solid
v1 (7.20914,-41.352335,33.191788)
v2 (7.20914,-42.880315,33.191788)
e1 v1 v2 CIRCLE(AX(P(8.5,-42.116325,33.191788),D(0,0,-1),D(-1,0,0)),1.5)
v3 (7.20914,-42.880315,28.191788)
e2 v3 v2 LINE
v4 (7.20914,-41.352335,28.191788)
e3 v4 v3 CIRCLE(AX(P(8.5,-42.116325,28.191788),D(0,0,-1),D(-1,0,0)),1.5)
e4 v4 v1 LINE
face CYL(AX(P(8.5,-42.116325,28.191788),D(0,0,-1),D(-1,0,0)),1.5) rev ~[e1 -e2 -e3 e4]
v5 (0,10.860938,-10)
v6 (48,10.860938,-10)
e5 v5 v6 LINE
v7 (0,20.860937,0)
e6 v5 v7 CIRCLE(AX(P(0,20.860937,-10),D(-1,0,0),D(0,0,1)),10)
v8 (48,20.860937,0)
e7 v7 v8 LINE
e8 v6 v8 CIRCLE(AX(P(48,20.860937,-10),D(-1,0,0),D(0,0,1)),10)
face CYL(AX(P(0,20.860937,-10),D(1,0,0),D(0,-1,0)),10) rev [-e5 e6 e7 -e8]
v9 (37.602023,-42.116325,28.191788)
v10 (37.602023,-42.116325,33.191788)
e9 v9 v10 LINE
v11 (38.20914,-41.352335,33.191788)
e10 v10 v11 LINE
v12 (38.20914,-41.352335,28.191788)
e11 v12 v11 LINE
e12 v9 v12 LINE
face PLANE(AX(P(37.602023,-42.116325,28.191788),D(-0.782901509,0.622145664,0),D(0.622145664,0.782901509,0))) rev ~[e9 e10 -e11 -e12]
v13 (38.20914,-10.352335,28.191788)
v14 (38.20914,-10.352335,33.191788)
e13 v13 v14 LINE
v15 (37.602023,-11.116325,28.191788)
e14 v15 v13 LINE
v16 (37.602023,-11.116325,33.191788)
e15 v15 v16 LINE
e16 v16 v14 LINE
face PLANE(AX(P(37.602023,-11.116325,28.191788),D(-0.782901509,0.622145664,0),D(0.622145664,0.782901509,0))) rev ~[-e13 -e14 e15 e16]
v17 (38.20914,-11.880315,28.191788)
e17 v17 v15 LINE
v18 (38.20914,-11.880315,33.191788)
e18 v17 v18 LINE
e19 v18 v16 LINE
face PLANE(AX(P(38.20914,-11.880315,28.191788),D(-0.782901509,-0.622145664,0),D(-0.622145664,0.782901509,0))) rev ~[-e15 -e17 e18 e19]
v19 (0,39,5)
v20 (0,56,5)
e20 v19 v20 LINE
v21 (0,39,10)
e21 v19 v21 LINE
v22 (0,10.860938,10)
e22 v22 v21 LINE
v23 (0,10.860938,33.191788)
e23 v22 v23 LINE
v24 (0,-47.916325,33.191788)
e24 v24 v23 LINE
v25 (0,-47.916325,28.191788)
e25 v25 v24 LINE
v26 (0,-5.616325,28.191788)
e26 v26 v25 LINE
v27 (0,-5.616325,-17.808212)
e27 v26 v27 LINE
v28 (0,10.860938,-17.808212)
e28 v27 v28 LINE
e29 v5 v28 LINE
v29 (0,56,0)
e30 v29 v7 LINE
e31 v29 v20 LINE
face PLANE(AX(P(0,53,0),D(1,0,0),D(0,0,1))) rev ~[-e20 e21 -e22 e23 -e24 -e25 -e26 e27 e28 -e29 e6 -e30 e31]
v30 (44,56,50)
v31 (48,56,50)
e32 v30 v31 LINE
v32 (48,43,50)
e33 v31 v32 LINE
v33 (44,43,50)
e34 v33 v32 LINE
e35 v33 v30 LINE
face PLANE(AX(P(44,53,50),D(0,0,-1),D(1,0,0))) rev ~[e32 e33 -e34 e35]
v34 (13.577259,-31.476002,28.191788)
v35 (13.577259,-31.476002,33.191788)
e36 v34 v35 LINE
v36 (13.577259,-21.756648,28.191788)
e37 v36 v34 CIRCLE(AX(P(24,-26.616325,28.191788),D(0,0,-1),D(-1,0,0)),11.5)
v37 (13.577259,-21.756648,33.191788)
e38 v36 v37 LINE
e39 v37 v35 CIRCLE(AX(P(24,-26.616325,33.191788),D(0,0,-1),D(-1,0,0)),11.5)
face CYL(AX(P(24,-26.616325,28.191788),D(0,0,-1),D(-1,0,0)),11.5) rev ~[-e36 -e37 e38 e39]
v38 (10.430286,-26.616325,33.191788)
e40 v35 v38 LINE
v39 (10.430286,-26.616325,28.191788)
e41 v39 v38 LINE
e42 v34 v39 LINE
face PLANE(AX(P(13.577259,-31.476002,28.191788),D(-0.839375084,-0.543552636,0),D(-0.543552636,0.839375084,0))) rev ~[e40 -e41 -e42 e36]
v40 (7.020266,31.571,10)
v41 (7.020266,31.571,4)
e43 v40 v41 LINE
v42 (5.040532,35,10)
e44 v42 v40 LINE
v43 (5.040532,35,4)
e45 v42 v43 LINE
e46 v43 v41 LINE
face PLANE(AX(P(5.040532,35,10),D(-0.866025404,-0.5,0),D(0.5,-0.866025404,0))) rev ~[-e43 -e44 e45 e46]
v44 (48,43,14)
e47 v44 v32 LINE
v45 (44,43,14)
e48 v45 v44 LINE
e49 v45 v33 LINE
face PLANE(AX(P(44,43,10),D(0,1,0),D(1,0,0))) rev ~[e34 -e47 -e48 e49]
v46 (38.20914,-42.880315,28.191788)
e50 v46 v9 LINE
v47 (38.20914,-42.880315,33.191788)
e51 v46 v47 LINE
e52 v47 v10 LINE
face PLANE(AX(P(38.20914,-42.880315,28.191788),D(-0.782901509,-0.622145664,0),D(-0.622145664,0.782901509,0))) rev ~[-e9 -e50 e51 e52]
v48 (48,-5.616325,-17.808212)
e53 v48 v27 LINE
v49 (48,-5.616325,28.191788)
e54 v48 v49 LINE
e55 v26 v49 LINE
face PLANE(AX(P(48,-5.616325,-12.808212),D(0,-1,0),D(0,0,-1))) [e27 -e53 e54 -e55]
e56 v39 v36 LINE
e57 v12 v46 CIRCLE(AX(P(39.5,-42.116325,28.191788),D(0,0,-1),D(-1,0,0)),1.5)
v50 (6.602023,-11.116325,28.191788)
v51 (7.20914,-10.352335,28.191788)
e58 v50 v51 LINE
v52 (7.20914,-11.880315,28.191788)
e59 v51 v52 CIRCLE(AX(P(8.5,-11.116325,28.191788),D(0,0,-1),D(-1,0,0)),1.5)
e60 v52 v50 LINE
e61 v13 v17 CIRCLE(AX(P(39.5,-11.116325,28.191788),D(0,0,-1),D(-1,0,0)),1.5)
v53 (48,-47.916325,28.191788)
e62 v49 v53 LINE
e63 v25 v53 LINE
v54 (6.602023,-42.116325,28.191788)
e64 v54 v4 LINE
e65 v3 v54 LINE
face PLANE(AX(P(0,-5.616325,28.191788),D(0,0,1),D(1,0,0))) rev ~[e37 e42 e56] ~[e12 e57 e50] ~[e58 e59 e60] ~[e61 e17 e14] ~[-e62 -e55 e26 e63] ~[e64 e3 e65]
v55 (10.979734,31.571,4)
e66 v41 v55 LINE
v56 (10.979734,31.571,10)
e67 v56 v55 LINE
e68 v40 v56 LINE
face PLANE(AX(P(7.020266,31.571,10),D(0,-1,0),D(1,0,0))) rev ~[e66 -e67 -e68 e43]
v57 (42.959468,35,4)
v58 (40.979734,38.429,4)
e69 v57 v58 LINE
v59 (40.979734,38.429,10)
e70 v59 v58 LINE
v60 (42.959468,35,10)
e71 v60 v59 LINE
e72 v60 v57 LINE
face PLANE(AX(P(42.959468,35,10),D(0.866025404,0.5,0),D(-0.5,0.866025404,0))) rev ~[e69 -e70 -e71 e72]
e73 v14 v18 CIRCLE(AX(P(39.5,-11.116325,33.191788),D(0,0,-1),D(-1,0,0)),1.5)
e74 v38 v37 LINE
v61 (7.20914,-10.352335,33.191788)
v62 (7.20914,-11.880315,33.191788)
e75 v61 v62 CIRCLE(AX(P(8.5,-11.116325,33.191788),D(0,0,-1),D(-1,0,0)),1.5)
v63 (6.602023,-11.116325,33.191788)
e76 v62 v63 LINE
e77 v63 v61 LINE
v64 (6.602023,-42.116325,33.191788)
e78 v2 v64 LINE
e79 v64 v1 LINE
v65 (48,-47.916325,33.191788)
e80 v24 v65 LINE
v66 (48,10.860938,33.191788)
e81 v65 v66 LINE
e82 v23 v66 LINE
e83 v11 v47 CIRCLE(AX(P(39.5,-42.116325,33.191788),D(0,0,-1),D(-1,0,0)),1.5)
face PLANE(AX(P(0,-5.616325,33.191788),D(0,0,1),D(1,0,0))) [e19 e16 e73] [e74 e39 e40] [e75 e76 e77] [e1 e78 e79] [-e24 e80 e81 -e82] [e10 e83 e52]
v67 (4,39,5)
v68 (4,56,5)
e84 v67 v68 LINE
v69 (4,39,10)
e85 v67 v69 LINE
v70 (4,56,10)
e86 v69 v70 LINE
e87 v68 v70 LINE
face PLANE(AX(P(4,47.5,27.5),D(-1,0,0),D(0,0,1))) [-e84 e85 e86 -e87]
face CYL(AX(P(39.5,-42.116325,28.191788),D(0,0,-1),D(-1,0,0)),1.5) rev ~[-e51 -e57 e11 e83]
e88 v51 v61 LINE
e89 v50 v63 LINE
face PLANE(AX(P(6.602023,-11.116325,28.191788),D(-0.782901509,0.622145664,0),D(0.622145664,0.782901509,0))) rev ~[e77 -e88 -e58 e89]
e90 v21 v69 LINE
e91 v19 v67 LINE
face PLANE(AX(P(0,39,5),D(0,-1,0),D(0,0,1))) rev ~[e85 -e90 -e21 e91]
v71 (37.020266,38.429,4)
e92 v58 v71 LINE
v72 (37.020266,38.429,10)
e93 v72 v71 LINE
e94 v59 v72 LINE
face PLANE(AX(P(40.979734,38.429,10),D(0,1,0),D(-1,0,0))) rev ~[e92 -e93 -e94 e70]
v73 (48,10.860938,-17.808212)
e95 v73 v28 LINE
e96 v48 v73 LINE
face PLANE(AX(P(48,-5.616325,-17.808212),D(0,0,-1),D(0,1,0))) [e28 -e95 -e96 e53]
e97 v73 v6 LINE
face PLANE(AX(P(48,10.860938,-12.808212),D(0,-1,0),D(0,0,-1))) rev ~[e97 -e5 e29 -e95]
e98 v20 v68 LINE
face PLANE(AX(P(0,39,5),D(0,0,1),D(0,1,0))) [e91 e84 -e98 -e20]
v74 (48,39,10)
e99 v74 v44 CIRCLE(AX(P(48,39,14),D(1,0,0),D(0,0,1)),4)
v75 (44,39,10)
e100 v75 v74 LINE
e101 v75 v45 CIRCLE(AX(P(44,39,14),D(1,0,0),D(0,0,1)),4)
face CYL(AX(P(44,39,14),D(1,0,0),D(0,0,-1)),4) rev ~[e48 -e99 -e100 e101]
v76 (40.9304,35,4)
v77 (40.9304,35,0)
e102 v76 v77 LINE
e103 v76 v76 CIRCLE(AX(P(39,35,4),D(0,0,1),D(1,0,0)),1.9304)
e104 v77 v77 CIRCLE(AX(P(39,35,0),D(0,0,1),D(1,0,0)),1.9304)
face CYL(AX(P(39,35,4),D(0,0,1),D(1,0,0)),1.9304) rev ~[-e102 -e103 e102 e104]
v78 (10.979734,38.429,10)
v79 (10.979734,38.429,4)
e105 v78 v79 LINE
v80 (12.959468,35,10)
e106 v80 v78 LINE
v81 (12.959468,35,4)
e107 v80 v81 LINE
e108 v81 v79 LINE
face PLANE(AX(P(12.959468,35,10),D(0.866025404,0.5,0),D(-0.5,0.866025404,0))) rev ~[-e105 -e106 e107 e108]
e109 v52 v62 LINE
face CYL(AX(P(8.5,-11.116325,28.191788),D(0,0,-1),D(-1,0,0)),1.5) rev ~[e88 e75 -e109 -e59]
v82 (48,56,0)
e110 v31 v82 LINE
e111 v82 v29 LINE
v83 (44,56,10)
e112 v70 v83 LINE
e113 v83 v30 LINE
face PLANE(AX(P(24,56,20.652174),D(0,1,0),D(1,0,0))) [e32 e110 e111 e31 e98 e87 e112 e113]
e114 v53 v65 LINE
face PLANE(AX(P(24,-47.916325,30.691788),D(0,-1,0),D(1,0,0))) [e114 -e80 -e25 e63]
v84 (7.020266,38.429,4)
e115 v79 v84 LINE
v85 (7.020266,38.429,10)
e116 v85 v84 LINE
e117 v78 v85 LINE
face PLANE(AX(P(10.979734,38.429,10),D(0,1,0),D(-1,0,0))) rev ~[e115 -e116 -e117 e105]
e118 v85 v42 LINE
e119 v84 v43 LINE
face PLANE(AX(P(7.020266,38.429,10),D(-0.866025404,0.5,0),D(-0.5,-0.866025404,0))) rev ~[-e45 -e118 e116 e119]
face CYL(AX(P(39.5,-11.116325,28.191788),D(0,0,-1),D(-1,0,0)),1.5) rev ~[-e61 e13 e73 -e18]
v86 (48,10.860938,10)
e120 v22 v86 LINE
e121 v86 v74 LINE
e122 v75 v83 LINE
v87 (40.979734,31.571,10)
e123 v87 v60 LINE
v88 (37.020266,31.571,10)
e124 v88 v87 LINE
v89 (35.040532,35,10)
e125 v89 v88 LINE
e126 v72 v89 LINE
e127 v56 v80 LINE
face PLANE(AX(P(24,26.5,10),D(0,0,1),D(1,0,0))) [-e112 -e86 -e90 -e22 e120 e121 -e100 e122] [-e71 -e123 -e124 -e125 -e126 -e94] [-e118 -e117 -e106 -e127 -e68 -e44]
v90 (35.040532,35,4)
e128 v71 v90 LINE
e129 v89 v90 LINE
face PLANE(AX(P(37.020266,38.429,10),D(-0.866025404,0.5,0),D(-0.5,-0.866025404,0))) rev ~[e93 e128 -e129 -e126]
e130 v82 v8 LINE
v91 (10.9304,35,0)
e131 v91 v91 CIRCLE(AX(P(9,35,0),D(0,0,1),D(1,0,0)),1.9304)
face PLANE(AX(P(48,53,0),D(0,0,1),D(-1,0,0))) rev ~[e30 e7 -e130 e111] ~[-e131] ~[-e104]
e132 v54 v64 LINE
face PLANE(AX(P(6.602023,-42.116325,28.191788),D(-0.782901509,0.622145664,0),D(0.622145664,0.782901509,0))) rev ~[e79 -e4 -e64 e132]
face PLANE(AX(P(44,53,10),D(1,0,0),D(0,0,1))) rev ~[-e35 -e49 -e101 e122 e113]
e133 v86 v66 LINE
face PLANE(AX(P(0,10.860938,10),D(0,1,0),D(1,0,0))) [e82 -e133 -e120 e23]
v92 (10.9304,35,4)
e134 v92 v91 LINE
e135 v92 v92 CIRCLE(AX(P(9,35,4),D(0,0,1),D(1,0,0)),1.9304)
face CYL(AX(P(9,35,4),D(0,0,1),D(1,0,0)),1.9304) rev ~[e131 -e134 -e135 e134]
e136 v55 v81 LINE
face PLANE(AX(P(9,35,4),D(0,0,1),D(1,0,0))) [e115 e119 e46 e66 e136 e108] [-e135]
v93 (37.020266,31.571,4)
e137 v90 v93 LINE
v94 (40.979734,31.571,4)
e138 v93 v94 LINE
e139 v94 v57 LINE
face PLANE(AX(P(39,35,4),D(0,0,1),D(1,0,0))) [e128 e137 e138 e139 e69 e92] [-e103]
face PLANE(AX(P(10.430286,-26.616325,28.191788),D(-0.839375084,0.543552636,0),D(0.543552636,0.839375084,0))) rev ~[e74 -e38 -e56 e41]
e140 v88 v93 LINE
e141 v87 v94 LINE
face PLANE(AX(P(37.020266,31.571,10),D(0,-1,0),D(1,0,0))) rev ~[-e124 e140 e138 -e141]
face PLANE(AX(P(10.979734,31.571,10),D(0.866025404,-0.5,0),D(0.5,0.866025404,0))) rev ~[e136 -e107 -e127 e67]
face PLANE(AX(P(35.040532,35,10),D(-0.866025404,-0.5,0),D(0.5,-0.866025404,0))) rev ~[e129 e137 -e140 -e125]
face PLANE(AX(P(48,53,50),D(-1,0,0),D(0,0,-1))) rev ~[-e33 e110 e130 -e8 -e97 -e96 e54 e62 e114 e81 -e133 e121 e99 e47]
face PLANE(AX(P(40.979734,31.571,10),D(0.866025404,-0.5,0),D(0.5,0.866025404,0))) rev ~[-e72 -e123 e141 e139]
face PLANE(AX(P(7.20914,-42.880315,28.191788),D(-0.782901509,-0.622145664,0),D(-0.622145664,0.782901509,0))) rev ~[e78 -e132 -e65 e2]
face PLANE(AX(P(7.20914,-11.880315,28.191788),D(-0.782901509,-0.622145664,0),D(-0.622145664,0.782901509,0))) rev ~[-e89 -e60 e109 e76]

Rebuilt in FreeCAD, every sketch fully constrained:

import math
import FreeCAD as App
import Part
import Sketcher
from FreeCAD import Vector
Q = App.Units.Quantity


def edges_at(feature, points):
    """Names of the edges that pass closest to the given points."""
    edges = feature.Shape.Edges
    near = lambda p: min(range(len(edges)), key=lambda i: edges[i].distToShape(Part.Vertex(*p))[0])
    return sorted({f"Edge{near(p) + 1}" for p in points})

doc = App.newDocument("Part")
body = doc.addObject("PartDesign::Body", "Body")

sketch1 = doc.addObject("Sketcher::SketchObject", "Sketch")
body.addObject(sketch1)
sketch1.AttachmentSupport = (doc.XY_Plane, [""])
sketch1.MapMode = "FlatFace"
sketch1.addGeometry([
    Part.LineSegment(Vector(0, 53, 0), Vector(0, 0, 0)),
    Part.LineSegment(Vector(0, 0, 0), Vector(48, 0, 0)),
    Part.LineSegment(Vector(48, 0, 0), Vector(48, 53, 0)),
    Part.LineSegment(Vector(48, 53, 0), Vector(0, 53, 0)),
], False)
sketch1.addConstraint([
    Sketcher.Constraint("Coincident", 0, 2, 1, 1),
    Sketcher.Constraint("Coincident", 1, 2, 2, 1),
    Sketcher.Constraint("Coincident", 2, 2, 3, 1),
    Sketcher.Constraint("Coincident", 3, 2, 0, 1),
    Sketcher.Constraint("Vertical", 0),
    Sketcher.Constraint("Horizontal", 1),
    Sketcher.Constraint("Vertical", 2),
    Sketcher.Constraint("Horizontal", 3),
    Sketcher.Constraint("Coincident", 0, 2, -1, 1),
    Sketcher.Constraint("DistanceX", 1, 1, 1, 2, Q("48 mm")),
    Sketcher.Constraint("DistanceY", 0, 2, 0, 1, Q("53 mm")),
])
pad1 = doc.addObject("PartDesign::Pad", "Pad")
body.addObject(pad1)
pad1.Profile = sketch1
pad1.Length = 10

sketch2 = doc.addObject("Sketcher::SketchObject", "Sketch001")
body.addObject(sketch2)
sketch2.AttachmentSupport = (doc.XY_Plane, [""])
sketch2.MapMode = "FlatFace"
sketch2.addGeometry([
    Part.LineSegment(Vector(48, 0, 0), Vector(48, -6, 0)),
    Part.LineSegment(Vector(48, -6, 0), Vector(0, -6, 0)),
    Part.LineSegment(Vector(0, -6, 0), Vector(0, 0, 0)),
    Part.LineSegment(Vector(0, 0, 0), Vector(48, 0, 0)),
], False)
sketch2.addConstraint([
    Sketcher.Constraint("Coincident", 0, 2, 1, 1),
    Sketcher.Constraint("Coincident", 1, 2, 2, 1),
    Sketcher.Constraint("Coincident", 2, 2, 3, 1),
    Sketcher.Constraint("Coincident", 3, 2, 0, 1),
    Sketcher.Constraint("Vertical", 0),
    Sketcher.Constraint("Horizontal", 1),
    Sketcher.Constraint("Vertical", 2),
    Sketcher.Constraint("Horizontal", 3),
    Sketcher.Constraint("Coincident", 2, 2, -1, 1),
    Sketcher.Constraint("DistanceX", 1, 2, 1, 1, Q("48 mm")),
    Sketcher.Constraint("DistanceY", 0, 2, 0, 1, Q("5.616325 mm")),
])
pad2 = doc.addObject("PartDesign::Pad", "Pad001")
body.addObject(pad2)
pad2.Profile = sketch2
pad2.Length = 33.191788

sketch3 = doc.addObject("Sketcher::SketchObject", "Sketch002")
body.addObject(sketch3)
sketch3.AttachmentSupport = (doc.XY_Plane, [""])
sketch3.MapMode = "FlatFace"
sketch3.AttachmentOffset = App.Placement(Vector(0, 0, 10), App.Rotation())
sketch3.addGeometry([
    Part.LineSegment(Vector(0, 53, 0), Vector(0, 43, 0)),
    Part.LineSegment(Vector(0, 43, 0), Vector(4, 43, 0)),
    Part.LineSegment(Vector(4, 43, 0), Vector(4, 53, 0)),
    Part.LineSegment(Vector(4, 53, 0), Vector(0, 53, 0)),
    Part.LineSegment(Vector(44, 53, 0), Vector(44, 43, 0)),
    Part.LineSegment(Vector(44, 43, 0), Vector(48, 43, 0)),
    Part.LineSegment(Vector(48, 43, 0), Vector(48, 53, 0)),
    Part.LineSegment(Vector(48, 53, 0), Vector(44, 53, 0)),
], False)
sketch3.addConstraint([
    Sketcher.Constraint("Coincident", 0, 2, 1, 1),
    Sketcher.Constraint("Coincident", 1, 2, 2, 1),
    Sketcher.Constraint("Coincident", 2, 2, 3, 1),
    Sketcher.Constraint("Coincident", 3, 2, 0, 1),
    Sketcher.Constraint("Coincident", 4, 2, 5, 1),
    Sketcher.Constraint("Coincident", 5, 2, 6, 1),
    Sketcher.Constraint("Coincident", 6, 2, 7, 1),
    Sketcher.Constraint("Coincident", 7, 2, 4, 1),
    Sketcher.Constraint("Vertical", 0),
    Sketcher.Constraint("Horizontal", 1),
    Sketcher.Constraint("Vertical", 2),
    Sketcher.Constraint("Horizontal", 3),
    Sketcher.Constraint("Vertical", 4),
    Sketcher.Constraint("Horizontal", 5),
    Sketcher.Constraint("Vertical", 6),
    Sketcher.Constraint("Horizontal", 7),
    Sketcher.Constraint("PointOnObject", 0, 2, -2),
    Sketcher.Constraint("Horizontal", 1, 2, 4, 2),
    Sketcher.Constraint("Horizontal", 3, 2, 6, 2),
    Sketcher.Constraint("Equal", 3, 5),
    Sketcher.Constraint("DistanceX", 1, 1, 1, 2, Q("4 mm")),
    Sketcher.Constraint("DistanceY", 0, 2, 0, 1, Q("10 mm")),
    Sketcher.Constraint("DistanceY", -1, 1, 0, 2, Q("43 mm")),
    Sketcher.Constraint("DistanceX", -1, 1, 4, 2, Q("44 mm")),
])
pad3 = doc.addObject("PartDesign::Pad", "Pad002")
body.addObject(pad3)
pad3.Profile = sketch3
pad3.Length = 40

sketch4 = doc.addObject("Sketcher::SketchObject", "Sketch003")
body.addObject(sketch4)
sketch4.AttachmentSupport = (doc.XY_Plane, [""])
sketch4.MapMode = "FlatFace"
sketch4.AttachmentOffset = App.Placement(Vector(0, 0, 10), App.Rotation())
sketch4.addGeometry([
    Part.LineSegment(Vector(0, 11, 0), Vector(0, 0, 0)),
    Part.LineSegment(Vector(0, 0, 0), Vector(48, 0, 0)),
    Part.LineSegment(Vector(48, 0, 0), Vector(48, 11, 0)),
    Part.LineSegment(Vector(48, 11, 0), Vector(0, 11, 0)),
], False)
sketch4.addConstraint([
    Sketcher.Constraint("Coincident", 0, 2, 1, 1),
    Sketcher.Constraint("Coincident", 1, 2, 2, 1),
    Sketcher.Constraint("Coincident", 2, 2, 3, 1),
    Sketcher.Constraint("Coincident", 3, 2, 0, 1),
    Sketcher.Constraint("Vertical", 0),
    Sketcher.Constraint("Horizontal", 1),
    Sketcher.Constraint("Vertical", 2),
    Sketcher.Constraint("Horizontal", 3),
    Sketcher.Constraint("Coincident", 0, 2, -1, 1),
    Sketcher.Constraint("DistanceX", 1, 1, 1, 2, Q("48 mm")),
    Sketcher.Constraint("DistanceY", 0, 2, 0, 1, Q("10.860938 mm")),
])
pad4 = doc.addObject("PartDesign::Pad", "Pad003")
body.addObject(pad4)
pad4.Profile = sketch4
pad4.Length = 23.191788

sketch5 = doc.addObject("Sketcher::SketchObject", "Sketch004")
body.addObject(sketch5)
sketch5.AttachmentSupport = (doc.XZ_Plane, [""])
sketch5.MapMode = "FlatFace"
sketch5.AttachmentOffset = App.Placement(Vector(0, 0, 5.616325), App.Rotation())
sketch5.addGeometry([
    Part.LineSegment(Vector(0, 33, 0), Vector(0, 28, 0)),
    Part.LineSegment(Vector(0, 28, 0), Vector(48, 28, 0)),
    Part.LineSegment(Vector(48, 28, 0), Vector(48, 33, 0)),
    Part.LineSegment(Vector(48, 33, 0), Vector(0, 33, 0)),
], False)
sketch5.addConstraint([
    Sketcher.Constraint("Coincident", 0, 2, 1, 1),
    Sketcher.Constraint("Coincident", 1, 2, 2, 1),
    Sketcher.Constraint("Coincident", 2, 2, 3, 1),
    Sketcher.Constraint("Coincident", 3, 2, 0, 1),
    Sketcher.Constraint("Vertical", 0),
    Sketcher.Constraint("Horizontal", 1),
    Sketcher.Constraint("Vertical", 2),
    Sketcher.Constraint("Horizontal", 3),
    Sketcher.Constraint("PointOnObject", 0, 2, -2),
    Sketcher.Constraint("DistanceX", 1, 1, 1, 2, Q("48 mm")),
    Sketcher.Constraint("DistanceY", 0, 2, 0, 1, Q("5 mm")),
    Sketcher.Constraint("DistanceY", -1, 1, 0, 2, Q("28.191788 mm")),
])
pad5 = doc.addObject("PartDesign::Pad", "Pad004")
body.addObject(pad5)
pad5.Profile = sketch5
pad5.Length = 42.3

sketch6 = doc.addObject("Sketcher::SketchObject", "Sketch005")
body.addObject(sketch6)
sketch6.AttachmentSupport = (doc.YZ_Plane, [""])
sketch6.MapMode = "FlatFace"
sketch6.addGeometry([
    Part.LineSegment(Vector(11, -13, 0), Vector(-6, -13, 0)),
    Part.LineSegment(Vector(-6, -13, 0), Vector(-6, 0, 0)),
    Part.LineSegment(Vector(-6, 0, 0), Vector(11, 0, 0)),
    Part.LineSegment(Vector(11, 0, 0), Vector(11, -13, 0)),
], False)
sketch6.addConstraint([
    Sketcher.Constraint("Coincident", 0, 2, 1, 1),
    Sketcher.Constraint("Coincident", 1, 2, 2, 1),
    Sketcher.Constraint("Coincident", 2, 2, 3, 1),
    Sketcher.Constraint("Coincident", 3, 2, 0, 1),
    Sketcher.Constraint("Horizontal", 0),
    Sketcher.Constraint("Vertical", 1),
    Sketcher.Constraint("Horizontal", 2),
    Sketcher.Constraint("Vertical", 3),
    Sketcher.Constraint("PointOnObject", 1, 2, -1),
    Sketcher.Constraint("DistanceX", 0, 2, 0, 1, Q("16.477263 mm")),
    Sketcher.Constraint("DistanceY", 1, 1, 1, 2, Q("12.808212 mm")),
    Sketcher.Constraint("DistanceX", 0, 2, -1, 1, Q("5.616325 mm")),
])
pad6 = doc.addObject("PartDesign::Pad", "Pad005")
body.addObject(pad6)
pad6.Profile = sketch6
pad6.Length = 48

sketch7 = doc.addObject("Sketcher::SketchObject", "Sketch006")
body.addObject(sketch7)
sketch7.AttachmentSupport = (doc.XY_Plane, [""])
sketch7.MapMode = "FlatFace"
sketch7.AttachmentOffset = App.Placement(Vector(0, 0, 28.191788), App.Rotation())
sketch7.addGeometry(Part.Circle(Vector(24, -27, 0), Vector(0, 0, 1), 12), False)
sketch7.addConstraint([
    Sketcher.Constraint("Diameter", 0, Q("23 mm")),
    Sketcher.Constraint("DistanceX", -1, 1, 0, 3, Q("24 mm")),
    Sketcher.Constraint("DistanceY", 0, 3, -1, 1, Q("26.616325 mm")),
])
pocket1 = doc.addObject("PartDesign::Pocket", "Pocket")
body.addObject(pocket1)
pocket1.Profile = sketch7
pocket1.Type = "UpToFirst"
pocket1.Reversed = True

sketch8 = doc.addObject("Sketcher::SketchObject", "Sketch007")
body.addObject(sketch8)
sketch8.AttachmentSupport = (doc.XY_Plane, [""])
sketch8.MapMode = "FlatFace"
sketch8.AttachmentOffset = App.Placement(Vector(0, 0, 28.191788), App.Rotation())
sketch8.addGeometry(Part.Circle(Vector(39.5, -11.1, 0), Vector(0, 0, 1), 1.5), False)
sketch8.addConstraint([
    Sketcher.Constraint("Diameter", 0, Q("3 mm")),
    Sketcher.Constraint("DistanceX", -1, 1, 0, 3, Q("39.5 mm")),
    Sketcher.Constraint("DistanceY", 0, 3, -1, 1, Q("11.116325 mm")),
])
pocket2 = doc.addObject("PartDesign::Pocket", "Pocket001")
body.addObject(pocket2)
pocket2.Profile = sketch8
pocket2.Type = "UpToFirst"
pocket2.Reversed = True

sketch9 = doc.addObject("Sketcher::SketchObject", "Sketch008")
body.addObject(sketch9)
sketch9.AttachmentSupport = (doc.XY_Plane, [""])
sketch9.MapMode = "FlatFace"
sketch9.AttachmentOffset = App.Placement(Vector(0, 0, 28.191788), App.Rotation())
sketch9.addGeometry(Part.Circle(Vector(39.5, -42.1, 0), Vector(0, 0, 1), 1.5), False)
sketch9.addConstraint([
    Sketcher.Constraint("Diameter", 0, Q("3 mm")),
    Sketcher.Constraint("DistanceX", -1, 1, 0, 3, Q("39.5 mm")),
    Sketcher.Constraint("DistanceY", 0, 3, -1, 1, Q("42.116325 mm")),
])
pocket3 = doc.addObject("PartDesign::Pocket", "Pocket002")
body.addObject(pocket3)
pocket3.Profile = sketch9
pocket3.Type = "UpToFirst"
pocket3.Reversed = True

sketch10 = doc.addObject("Sketcher::SketchObject", "Sketch009")
body.addObject(sketch10)
sketch10.AttachmentSupport = (doc.XY_Plane, [""])
sketch10.MapMode = "FlatFace"
sketch10.AttachmentOffset = App.Placement(Vector(0, 0, 28.191788), App.Rotation())
sketch10.addGeometry(Part.Circle(Vector(8.5, -11.1, 0), Vector(0, 0, 1), 1.5), False)
sketch10.addConstraint([
    Sketcher.Constraint("Diameter", 0, Q("3 mm")),
    Sketcher.Constraint("DistanceX", -1, 1, 0, 3, Q("8.5 mm")),
    Sketcher.Constraint("DistanceY", 0, 3, -1, 1, Q("11.116325 mm")),
])
pocket4 = doc.addObject("PartDesign::Pocket", "Pocket003")
body.addObject(pocket4)
pocket4.Profile = sketch10
pocket4.Type = "UpToFirst"
pocket4.Reversed = True

sketch11 = doc.addObject("Sketcher::SketchObject", "Sketch010")
body.addObject(sketch11)
sketch11.AttachmentSupport = (doc.XY_Plane, [""])
sketch11.MapMode = "FlatFace"
sketch11.AttachmentOffset = App.Placement(Vector(0, 0, 28.191788), App.Rotation())
sketch11.addGeometry(Part.Circle(Vector(8.5, -42.1, 0), Vector(0, 0, 1), 1.5), False)
sketch11.addConstraint([
    Sketcher.Constraint("Diameter", 0, Q("3 mm")),
    Sketcher.Constraint("DistanceX", -1, 1, 0, 3, Q("8.5 mm")),
    Sketcher.Constraint("DistanceY", 0, 3, -1, 1, Q("42.116325 mm")),
])
pocket5 = doc.addObject("PartDesign::Pocket", "Pocket004")
body.addObject(pocket5)
pocket5.Profile = sketch11
pocket5.Type = "UpToFirst"
pocket5.Reversed = True
doc.recompute()

fillet = doc.addObject("PartDesign::Fillet", "Fillet")
body.addObject(fillet)
fillet.Base = (pocket5, edges_at(pocket5, [(24, 10.861, 0)]))
fillet.Radius = 10
doc.recompute()

fillet2 = doc.addObject("PartDesign::Fillet", "Fillet001")
body.addObject(fillet2)
fillet2.Base = (fillet, edges_at(fillet, [(2, 43, 10), (46, 43, 10)]))
fillet2.Radius = 4

sketch12 = doc.addObject("Sketcher::SketchObject", "Sketch011")
body.addObject(sketch12)
sketch12.AttachmentSupport = (doc.YZ_Plane, [""])
sketch12.MapMode = "FlatFace"
sketch12.AttachmentOffset = App.Placement(Vector(0, 0, 48), App.Rotation())
sketch12.addGeometry([
    Part.LineSegment(Vector(11, -13, 0), Vector(-6, -13, 0)),
    Part.LineSegment(Vector(-6, -13, 0), Vector(-6, -18, 0)),
    Part.LineSegment(Vector(-6, -18, 0), Vector(11, -18, 0)),
    Part.LineSegment(Vector(11, -18, 0), Vector(11, -13, 0)),
], False)
sketch12.addConstraint([
    Sketcher.Constraint("Coincident", 0, 2, 1, 1),
    Sketcher.Constraint("Coincident", 1, 2, 2, 1),
    Sketcher.Constraint("Coincident", 2, 2, 3, 1),
    Sketcher.Constraint("Coincident", 3, 2, 0, 1),
    Sketcher.Constraint("Horizontal", 0),
    Sketcher.Constraint("Vertical", 1),
    Sketcher.Constraint("Horizontal", 2),
    Sketcher.Constraint("Vertical", 3),
    Sketcher.Constraint("DistanceY", 1, 2, 1, 1, Q("5 mm")),
    Sketcher.Constraint("DistanceX", 0, 2, 0, 1, Q("16.477263 mm")),
    Sketcher.Constraint("DistanceX", 0, 2, -1, 1, Q("5.616325 mm")),
    Sketcher.Constraint("DistanceY", 0, 2, -1, 1, Q("12.808212 mm")),
])
pad7 = doc.addObject("PartDesign::Pad", "Pad006")
body.addObject(pad7)
pad7.Profile = sketch12
pad7.Length = 48
pad7.Reversed = True

sketch13 = doc.addObject("Sketcher::SketchObject", "Sketch012")
body.addObject(sketch13)
sketch13.AttachmentSupport = (doc.XY_Plane, [""])
sketch13.MapMode = "FlatFace"
sketch13.AttachmentOffset = App.Placement(Vector(0, 0, 10), App.Rotation())
sketch13.addGeometry([
    Part.LineSegment(Vector(7, 38.4, 0), Vector(5, 35, 0)),
    Part.LineSegment(Vector(5, 35, 0), Vector(7, 31.6, 0)),
    Part.LineSegment(Vector(7, 31.6, 0), Vector(11, 31.6, 0)),
    Part.LineSegment(Vector(11, 31.6, 0), Vector(13, 35, 0)),
    Part.LineSegment(Vector(13, 35, 0), Vector(11, 38.4, 0)),
    Part.LineSegment(Vector(11, 38.4, 0), Vector(7, 38.4, 0)),
    Part.LineSegment(Vector(37, 31.6, 0), Vector(41, 31.6, 0)),
    Part.LineSegment(Vector(41, 31.6, 0), Vector(43, 35, 0)),
    Part.LineSegment(Vector(43, 35, 0), Vector(41, 38.4, 0)),
    Part.LineSegment(Vector(41, 38.4, 0), Vector(37, 38.4, 0)),
    Part.LineSegment(Vector(37, 38.4, 0), Vector(35, 35, 0)),
    Part.LineSegment(Vector(35, 35, 0), Vector(37, 31.6, 0)),
], False)
sketch13.addConstraint([
    Sketcher.Constraint("Coincident", 0, 2, 1, 1),
    Sketcher.Constraint("Coincident", 1, 2, 2, 1),
    Sketcher.Constraint("Coincident", 2, 2, 3, 1),
    Sketcher.Constraint("Coincident", 3, 2, 4, 1),
    Sketcher.Constraint("Coincident", 4, 2, 5, 1),
    Sketcher.Constraint("Coincident", 5, 2, 0, 1),
    Sketcher.Constraint("Coincident", 6, 2, 7, 1),
    Sketcher.Constraint("Coincident", 7, 2, 8, 1),
    Sketcher.Constraint("Coincident", 8, 2, 9, 1),
    Sketcher.Constraint("Coincident", 9, 2, 10, 1),
    Sketcher.Constraint("Coincident", 10, 2, 11, 1),
    Sketcher.Constraint("Coincident", 11, 2, 6, 1),
    Sketcher.Constraint("Horizontal", 2),
    Sketcher.Constraint("Horizontal", 5),
    Sketcher.Constraint("Horizontal", 6),
    Sketcher.Constraint("Horizontal", 9),
    Sketcher.Constraint("Parallel", 0, 3),
    Sketcher.Constraint("Parallel", 1, 4),
    Sketcher.Constraint("Parallel", 3, 7),
    Sketcher.Constraint("Parallel", 4, 8),
    Sketcher.Constraint("Parallel", 7, 10),
    Sketcher.Constraint("Parallel", 8, 11),
    Sketcher.Constraint("Horizontal", 0, 2, 3, 2),
    Sketcher.Constraint("Horizontal", 2, 2, 6, 2),
    Sketcher.Constraint("Horizontal", 3, 2, 7, 2),
    Sketcher.Constraint("Horizontal", 5, 2, 8, 2),
    Sketcher.Constraint("Horizontal", 7, 2, 10, 2),
    Sketcher.Constraint("Vertical", 2, 2, 4, 2),
    Sketcher.Constraint("Vertical", 1, 2, 5, 2),
    Sketcher.Constraint("Equal", 5, 6),
    Sketcher.Constraint("Angle", 0, Q("-120 deg")),
    Sketcher.Constraint("DistanceY", -1, 1, 0, 2, Q("35 mm")),
    Sketcher.Constraint("DistanceX", 2, 2, 6, 2, Q("30 mm")),
    Sketcher.Constraint("DistanceY", -1, 1, 1, 2, Q("31.571 mm")),
    Sketcher.Constraint("DistanceX", 2, 1, 2, 2, Q("3.959468 mm")),
    Sketcher.Constraint("DistanceX", -1, 1, 0, 2, Q("5.040532 mm")),
])
pocket6 = doc.addObject("PartDesign::Pocket", "Pocket005")
body.addObject(pocket6)
pocket6.Profile = sketch13
pocket6.Length = 6

sketch14 = doc.addObject("Sketcher::SketchObject", "Sketch013")
body.addObject(sketch14)
sketch14.AttachmentSupport = (doc.XY_Plane, [""])
sketch14.MapMode = "FlatFace"
sketch14.AttachmentOffset = App.Placement(Vector(0, 0, 4), App.Rotation())
sketch14.addGeometry([
    Part.Circle(Vector(9, 35, 0), Vector(0, 0, 1), 1.9),
    Part.Circle(Vector(39, 35, 0), Vector(0, 0, 1), 1.9),
], False)
sketch14.addConstraint([
    Sketcher.Constraint("Equal", 0, 1),
    Sketcher.Constraint("Horizontal", 0, 3, 1, 3),
    Sketcher.Constraint("DistanceX", -1, 1, 0, 3, Q("9 mm")),
    Sketcher.Constraint("DistanceY", -1, 1, 0, 3, Q("35 mm")),
    Sketcher.Constraint("DistanceX", -1, 1, 1, 3, Q("39 mm")),
    Sketcher.Constraint("Diameter", 0, Q("3.8608 mm")),
])
pocket7 = doc.addObject("PartDesign::Pocket", "Pocket006")
body.addObject(pocket7)
pocket7.Profile = sketch14
pocket7.Length = 6

sketch15 = doc.addObject("Sketcher::SketchObject", "Sketch014")
body.addObject(sketch15)
sketch15.AttachmentSupport = (doc.XZ_Plane, [""])
sketch15.MapMode = "FlatFace"
sketch15.AttachmentOffset = App.Placement(Vector(0, 0, -53), App.Rotation())
sketch15.addGeometry([
    Part.LineSegment(Vector(0, 0, 0), Vector(0, 50, 0)),
    Part.LineSegment(Vector(0, 50, 0), Vector(4, 50, 0)),
    Part.LineSegment(Vector(4, 50, 0), Vector(4, 10, 0)),
    Part.LineSegment(Vector(4, 10, 0), Vector(44, 10, 0)),
    Part.LineSegment(Vector(44, 10, 0), Vector(44, 50, 0)),
    Part.LineSegment(Vector(44, 50, 0), Vector(48, 50, 0)),
    Part.LineSegment(Vector(48, 50, 0), Vector(48, 0, 0)),
    Part.LineSegment(Vector(48, 0, 0), Vector(0, 0, 0)),
], False)
sketch15.addConstraint([
    Sketcher.Constraint("Coincident", 0, 2, 1, 1),
    Sketcher.Constraint("Coincident", 1, 2, 2, 1),
    Sketcher.Constraint("Coincident", 2, 2, 3, 1),
    Sketcher.Constraint("Coincident", 3, 2, 4, 1),
    Sketcher.Constraint("Coincident", 4, 2, 5, 1),
    Sketcher.Constraint("Coincident", 5, 2, 6, 1),
    Sketcher.Constraint("Coincident", 6, 2, 7, 1),
    Sketcher.Constraint("Coincident", 7, 2, 0, 1),
    Sketcher.Constraint("Vertical", 0),
    Sketcher.Constraint("Horizontal", 1),
    Sketcher.Constraint("Vertical", 2),
    Sketcher.Constraint("Horizontal", 3),
    Sketcher.Constraint("Vertical", 4),
    Sketcher.Constraint("Horizontal", 5),
    Sketcher.Constraint("Vertical", 6),
    Sketcher.Constraint("Horizontal", 7),
    Sketcher.Constraint("Coincident", 7, 2, -1, 1),
    Sketcher.Constraint("Horizontal", 1, 2, 4, 2),
    Sketcher.Constraint("Equal", 1, 5),
    Sketcher.Constraint("Equal", 3, 2),
    Sketcher.Constraint("DistanceX", 1, 1, 1, 2, Q("4 mm")),
    Sketcher.Constraint("DistanceX", 3, 1, 3, 2, Q("40 mm")),
    Sketcher.Constraint("DistanceY", 0, 1, 0, 2, Q("50 mm")),
])
pad8 = doc.addObject("PartDesign::Pad", "Pad007")
body.addObject(pad8)
pad8.Profile = sketch15
pad8.Length = 3
pad8.Reversed = True

sketch16 = doc.addObject("Sketcher::SketchObject", "Sketch015")
body.addObject(sketch16)
sketch16.AttachmentSupport = (doc.YZ_Plane, [""])
sketch16.MapMode = "FlatFace"
sketch16.addGeometry([
    Part.LineSegment(Vector(56, 5, 0), Vector(39, 5, 0)),
    Part.LineSegment(Vector(39, 5, 0), Vector(39, 50, 0)),
    Part.LineSegment(Vector(39, 50, 0), Vector(56, 50, 0)),
    Part.LineSegment(Vector(56, 50, 0), Vector(56, 5, 0)),
], False)
sketch16.addConstraint([
    Sketcher.Constraint("Coincident", 0, 2, 1, 1),
    Sketcher.Constraint("Coincident", 1, 2, 2, 1),
    Sketcher.Constraint("Coincident", 2, 2, 3, 1),
    Sketcher.Constraint("Coincident", 3, 2, 0, 1),
    Sketcher.Constraint("Horizontal", 0),
    Sketcher.Constraint("Vertical", 1),
    Sketcher.Constraint("Horizontal", 2),
    Sketcher.Constraint("Vertical", 3),
    Sketcher.Constraint("DistanceX", 0, 2, 0, 1, Q("17 mm")),
    Sketcher.Constraint("DistanceY", 1, 1, 1, 2, Q("45 mm")),
    Sketcher.Constraint("DistanceX", -1, 1, 0, 2, Q("39 mm")),
    Sketcher.Constraint("DistanceY", -1, 1, 0, 2, Q("5 mm")),
])
pocket8 = doc.addObject("PartDesign::Pocket", "Pocket007")
body.addObject(pocket8)
pocket8.Profile = sketch16
pocket8.Length = 4
pocket8.Reversed = True

sketch17 = doc.addObject("Sketcher::SketchObject", "Sketch016")
body.addObject(sketch17)
sketch17.AttachmentSupport = (doc.XY_Plane, [""])
sketch17.MapMode = "FlatFace"
sketch17.AttachmentOffset = App.Placement(Vector(0, 0, 28.191788), App.Rotation())
sketch17.addGeometry([
    Part.LineSegment(Vector(10.4, -26.6, 0), Vector(13.6, -21.8, 0)),
    Part.ArcOfCircle(Part.Circle(Vector(24, -26.6, 0), Vector(0, 0, 1), 11.5), math.radians(155), math.radians(180)),
    Part.ArcOfCircle(Part.Circle(Vector(24, -26.6, 0), Vector(0, 0, 1), 11.5), math.radians(180), math.radians(205)),
    Part.LineSegment(Vector(13.6, -31.5, 0), Vector(10.4, -26.6, 0)),
], False)
sketch17.addConstraint([
    Sketcher.Constraint("Coincident", 0, 2, 1, 1),
    Sketcher.Constraint("Tangent", 1, 2, 2, 1),
    Sketcher.Constraint("Coincident", 2, 2, 3, 1),
    Sketcher.Constraint("Coincident", 3, 2, 0, 1),
    Sketcher.Constraint("Equal", 1, 2),
    Sketcher.Constraint("Horizontal", 2, 3, 1, 2),
    Sketcher.Constraint("Horizontal", 1, 2, 3, 2),
    Sketcher.Constraint("Vertical", 0, 2, 2, 2),
    Sketcher.Constraint("Radius", 1, Q("11.5 mm")),
    Sketcher.Constraint("DistanceX", -1, 1, 1, 3, Q("24 mm")),
    Sketcher.Constraint("DistanceX", -1, 1, 0, 2, Q("13.577259 mm")),
    Sketcher.Constraint("Distance", 0, Q("5.789637 mm")),
    Sketcher.Constraint("DistanceY", 1, 3, -1, 1, Q("26.616325 mm")),
])
pocket9 = doc.addObject("PartDesign::Pocket", "Pocket008")
body.addObject(pocket9)
pocket9.Profile = sketch17
pocket9.Type = "UpToFirst"
pocket9.Reversed = True

sketch18 = doc.addObject("Sketcher::SketchObject", "Sketch017")
body.addObject(sketch18)
sketch18.AttachmentSupport = (doc.XY_Plane, [""])
sketch18.MapMode = "FlatFace"
sketch18.AttachmentOffset = App.Placement(Vector(0, 0, 28.191788), App.Rotation())
sketch18.addGeometry([
    Part.LineSegment(Vector(6.6, -11.1, 0), Vector(7.2, -10.4, 0)),
    Part.ArcOfCircle(Part.Circle(Vector(8.5, -11.1, 0), Vector(0, 0, 1), 1.5), math.radians(149), math.radians(180)),
    Part.ArcOfCircle(Part.Circle(Vector(8.5, -11.1, 0), Vector(0, 0, 1), 1.5), math.radians(180), math.radians(211)),
    Part.LineSegment(Vector(7.2, -11.9, 0), Vector(6.6, -11.1, 0)),
], False)
sketch18.addConstraint([
    Sketcher.Constraint("Coincident", 0, 2, 1, 1),
    Sketcher.Constraint("Tangent", 1, 2, 2, 1),
    Sketcher.Constraint("Coincident", 2, 2, 3, 1),
    Sketcher.Constraint("Coincident", 3, 2, 0, 1),
    Sketcher.Constraint("Equal", 1, 2),
    Sketcher.Constraint("Horizontal", 2, 3, 1, 2),
    Sketcher.Constraint("Horizontal", 1, 2, 3, 2),
    Sketcher.Constraint("Vertical", 0, 2, 2, 2),
    Sketcher.Constraint("Radius", 1, Q("1.5 mm")),
    Sketcher.Constraint("DistanceX", -1, 1, 1, 2, Q("7 mm")),
    Sketcher.Constraint("DistanceX", -1, 1, 0, 2, Q("7.20914 mm")),
    Sketcher.Constraint("Distance", 0, Q("0.975845 mm")),
    Sketcher.Constraint("DistanceY", 1, 3, -1, 1, Q("11.116325 mm")),
])
pocket10 = doc.addObject("PartDesign::Pocket", "Pocket009")
body.addObject(pocket10)
pocket10.Profile = sketch18
pocket10.Type = "UpToFirst"
pocket10.Reversed = True

sketch19 = doc.addObject("Sketcher::SketchObject", "Sketch018")
body.addObject(sketch19)
sketch19.AttachmentSupport = (doc.XY_Plane, [""])
sketch19.MapMode = "FlatFace"
sketch19.AttachmentOffset = App.Placement(Vector(0, 0, 28.191788), App.Rotation())
sketch19.addGeometry([
    Part.LineSegment(Vector(37.6, -11.1, 0), Vector(38.2, -10.4, 0)),
    Part.ArcOfCircle(Part.Circle(Vector(39.5, -11.1, 0), Vector(0, 0, 1), 1.5), math.radians(149), math.radians(180)),
    Part.ArcOfCircle(Part.Circle(Vector(39.5, -11.1, 0), Vector(0, 0, 1), 1.5), math.radians(180), math.radians(211)),
    Part.LineSegment(Vector(38.2, -11.9, 0), Vector(37.6, -11.1, 0)),
], False)
sketch19.addConstraint([
    Sketcher.Constraint("Coincident", 0, 2, 1, 1),
    Sketcher.Constraint("Tangent", 1, 2, 2, 1),
    Sketcher.Constraint("Coincident", 2, 2, 3, 1),
    Sketcher.Constraint("Coincident", 3, 2, 0, 1),
    Sketcher.Constraint("Equal", 1, 2),
    Sketcher.Constraint("Horizontal", 2, 3, 1, 2),
    Sketcher.Constraint("Horizontal", 1, 2, 3, 2),
    Sketcher.Constraint("Vertical", 0, 2, 2, 2),
    Sketcher.Constraint("Radius", 1, Q("1.5 mm")),
    Sketcher.Constraint("DistanceX", -1, 1, 1, 2, Q("38 mm")),
    Sketcher.Constraint("DistanceX", -1, 1, 0, 2, Q("38.20914 mm")),
    Sketcher.Constraint("Distance", 0, Q("0.975845 mm")),
    Sketcher.Constraint("DistanceY", 1, 3, -1, 1, Q("11.116325 mm")),
])
pocket11 = doc.addObject("PartDesign::Pocket", "Pocket010")
body.addObject(pocket11)
pocket11.Profile = sketch19
pocket11.Type = "UpToFirst"
pocket11.Reversed = True

sketch20 = doc.addObject("Sketcher::SketchObject", "Sketch019")
body.addObject(sketch20)
sketch20.AttachmentSupport = (doc.XY_Plane, [""])
sketch20.MapMode = "FlatFace"
sketch20.AttachmentOffset = App.Placement(Vector(0, 0, 28.191788), App.Rotation())
sketch20.addGeometry([
    Part.LineSegment(Vector(37.6, -42.1, 0), Vector(38.2, -41.4, 0)),
    Part.ArcOfCircle(Part.Circle(Vector(39.5, -42.1, 0), Vector(0, 0, 1), 1.5), math.radians(149), math.radians(180)),
    Part.ArcOfCircle(Part.Circle(Vector(39.5, -42.1, 0), Vector(0, 0, 1), 1.5), math.radians(180), math.radians(211)),
    Part.LineSegment(Vector(38.2, -42.9, 0), Vector(37.6, -42.1, 0)),
], False)
sketch20.addConstraint([
    Sketcher.Constraint("Coincident", 0, 2, 1, 1),
    Sketcher.Constraint("Tangent", 1, 2, 2, 1),
    Sketcher.Constraint("Coincident", 2, 2, 3, 1),
    Sketcher.Constraint("Coincident", 3, 2, 0, 1),
    Sketcher.Constraint("Equal", 1, 2),
    Sketcher.Constraint("Horizontal", 2, 3, 1, 2),
    Sketcher.Constraint("Horizontal", 1, 2, 3, 2),
    Sketcher.Constraint("Vertical", 0, 2, 2, 2),
    Sketcher.Constraint("Radius", 1, Q("1.5 mm")),
    Sketcher.Constraint("DistanceX", -1, 1, 1, 2, Q("38 mm")),
    Sketcher.Constraint("DistanceX", -1, 1, 0, 2, Q("38.20914 mm")),
    Sketcher.Constraint("Distance", 0, Q("0.975845 mm")),
    Sketcher.Constraint("DistanceY", 1, 3, -1, 1, Q("42.116325 mm")),
])
pocket12 = doc.addObject("PartDesign::Pocket", "Pocket011")
body.addObject(pocket12)
pocket12.Profile = sketch20
pocket12.Type = "UpToFirst"
pocket12.Reversed = True

sketch21 = doc.addObject("Sketcher::SketchObject", "Sketch020")
body.addObject(sketch21)
sketch21.AttachmentSupport = (doc.XY_Plane, [""])
sketch21.MapMode = "FlatFace"
sketch21.AttachmentOffset = App.Placement(Vector(0, 0, 28.191788), App.Rotation())
sketch21.addGeometry([
    Part.LineSegment(Vector(6.6, -42.1, 0), Vector(7.2, -41.4, 0)),
    Part.ArcOfCircle(Part.Circle(Vector(8.5, -42.1, 0), Vector(0, 0, 1), 1.5), math.radians(149), math.radians(180)),
    Part.ArcOfCircle(Part.Circle(Vector(8.5, -42.1, 0), Vector(0, 0, 1), 1.5), math.radians(180), math.radians(211)),
    Part.LineSegment(Vector(7.2, -42.9, 0), Vector(6.6, -42.1, 0)),
], False)
sketch21.addConstraint([
    Sketcher.Constraint("Coincident", 0, 2, 1, 1),
    Sketcher.Constraint("Tangent", 1, 2, 2, 1),
    Sketcher.Constraint("Coincident", 2, 2, 3, 1),
    Sketcher.Constraint("Coincident", 3, 2, 0, 1),
    Sketcher.Constraint("Equal", 1, 2),
    Sketcher.Constraint("Horizontal", 2, 3, 1, 2),
    Sketcher.Constraint("Horizontal", 1, 2, 3, 2),
    Sketcher.Constraint("Vertical", 0, 2, 2, 2),
    Sketcher.Constraint("Radius", 1, Q("1.5 mm")),
    Sketcher.Constraint("DistanceX", -1, 1, 1, 2, Q("7 mm")),
    Sketcher.Constraint("DistanceX", -1, 1, 0, 2, Q("7.20914 mm")),
    Sketcher.Constraint("Distance", 0, Q("0.975845 mm")),
    Sketcher.Constraint("DistanceY", 1, 3, -1, 1, Q("42.116325 mm")),
])
pocket13 = doc.addObject("PartDesign::Pocket", "Pocket012")
body.addObject(pocket13)
pocket13.Profile = sketch21
pocket13.Type = "UpToFirst"
pocket13.Reversed = True

doc.recompute()
